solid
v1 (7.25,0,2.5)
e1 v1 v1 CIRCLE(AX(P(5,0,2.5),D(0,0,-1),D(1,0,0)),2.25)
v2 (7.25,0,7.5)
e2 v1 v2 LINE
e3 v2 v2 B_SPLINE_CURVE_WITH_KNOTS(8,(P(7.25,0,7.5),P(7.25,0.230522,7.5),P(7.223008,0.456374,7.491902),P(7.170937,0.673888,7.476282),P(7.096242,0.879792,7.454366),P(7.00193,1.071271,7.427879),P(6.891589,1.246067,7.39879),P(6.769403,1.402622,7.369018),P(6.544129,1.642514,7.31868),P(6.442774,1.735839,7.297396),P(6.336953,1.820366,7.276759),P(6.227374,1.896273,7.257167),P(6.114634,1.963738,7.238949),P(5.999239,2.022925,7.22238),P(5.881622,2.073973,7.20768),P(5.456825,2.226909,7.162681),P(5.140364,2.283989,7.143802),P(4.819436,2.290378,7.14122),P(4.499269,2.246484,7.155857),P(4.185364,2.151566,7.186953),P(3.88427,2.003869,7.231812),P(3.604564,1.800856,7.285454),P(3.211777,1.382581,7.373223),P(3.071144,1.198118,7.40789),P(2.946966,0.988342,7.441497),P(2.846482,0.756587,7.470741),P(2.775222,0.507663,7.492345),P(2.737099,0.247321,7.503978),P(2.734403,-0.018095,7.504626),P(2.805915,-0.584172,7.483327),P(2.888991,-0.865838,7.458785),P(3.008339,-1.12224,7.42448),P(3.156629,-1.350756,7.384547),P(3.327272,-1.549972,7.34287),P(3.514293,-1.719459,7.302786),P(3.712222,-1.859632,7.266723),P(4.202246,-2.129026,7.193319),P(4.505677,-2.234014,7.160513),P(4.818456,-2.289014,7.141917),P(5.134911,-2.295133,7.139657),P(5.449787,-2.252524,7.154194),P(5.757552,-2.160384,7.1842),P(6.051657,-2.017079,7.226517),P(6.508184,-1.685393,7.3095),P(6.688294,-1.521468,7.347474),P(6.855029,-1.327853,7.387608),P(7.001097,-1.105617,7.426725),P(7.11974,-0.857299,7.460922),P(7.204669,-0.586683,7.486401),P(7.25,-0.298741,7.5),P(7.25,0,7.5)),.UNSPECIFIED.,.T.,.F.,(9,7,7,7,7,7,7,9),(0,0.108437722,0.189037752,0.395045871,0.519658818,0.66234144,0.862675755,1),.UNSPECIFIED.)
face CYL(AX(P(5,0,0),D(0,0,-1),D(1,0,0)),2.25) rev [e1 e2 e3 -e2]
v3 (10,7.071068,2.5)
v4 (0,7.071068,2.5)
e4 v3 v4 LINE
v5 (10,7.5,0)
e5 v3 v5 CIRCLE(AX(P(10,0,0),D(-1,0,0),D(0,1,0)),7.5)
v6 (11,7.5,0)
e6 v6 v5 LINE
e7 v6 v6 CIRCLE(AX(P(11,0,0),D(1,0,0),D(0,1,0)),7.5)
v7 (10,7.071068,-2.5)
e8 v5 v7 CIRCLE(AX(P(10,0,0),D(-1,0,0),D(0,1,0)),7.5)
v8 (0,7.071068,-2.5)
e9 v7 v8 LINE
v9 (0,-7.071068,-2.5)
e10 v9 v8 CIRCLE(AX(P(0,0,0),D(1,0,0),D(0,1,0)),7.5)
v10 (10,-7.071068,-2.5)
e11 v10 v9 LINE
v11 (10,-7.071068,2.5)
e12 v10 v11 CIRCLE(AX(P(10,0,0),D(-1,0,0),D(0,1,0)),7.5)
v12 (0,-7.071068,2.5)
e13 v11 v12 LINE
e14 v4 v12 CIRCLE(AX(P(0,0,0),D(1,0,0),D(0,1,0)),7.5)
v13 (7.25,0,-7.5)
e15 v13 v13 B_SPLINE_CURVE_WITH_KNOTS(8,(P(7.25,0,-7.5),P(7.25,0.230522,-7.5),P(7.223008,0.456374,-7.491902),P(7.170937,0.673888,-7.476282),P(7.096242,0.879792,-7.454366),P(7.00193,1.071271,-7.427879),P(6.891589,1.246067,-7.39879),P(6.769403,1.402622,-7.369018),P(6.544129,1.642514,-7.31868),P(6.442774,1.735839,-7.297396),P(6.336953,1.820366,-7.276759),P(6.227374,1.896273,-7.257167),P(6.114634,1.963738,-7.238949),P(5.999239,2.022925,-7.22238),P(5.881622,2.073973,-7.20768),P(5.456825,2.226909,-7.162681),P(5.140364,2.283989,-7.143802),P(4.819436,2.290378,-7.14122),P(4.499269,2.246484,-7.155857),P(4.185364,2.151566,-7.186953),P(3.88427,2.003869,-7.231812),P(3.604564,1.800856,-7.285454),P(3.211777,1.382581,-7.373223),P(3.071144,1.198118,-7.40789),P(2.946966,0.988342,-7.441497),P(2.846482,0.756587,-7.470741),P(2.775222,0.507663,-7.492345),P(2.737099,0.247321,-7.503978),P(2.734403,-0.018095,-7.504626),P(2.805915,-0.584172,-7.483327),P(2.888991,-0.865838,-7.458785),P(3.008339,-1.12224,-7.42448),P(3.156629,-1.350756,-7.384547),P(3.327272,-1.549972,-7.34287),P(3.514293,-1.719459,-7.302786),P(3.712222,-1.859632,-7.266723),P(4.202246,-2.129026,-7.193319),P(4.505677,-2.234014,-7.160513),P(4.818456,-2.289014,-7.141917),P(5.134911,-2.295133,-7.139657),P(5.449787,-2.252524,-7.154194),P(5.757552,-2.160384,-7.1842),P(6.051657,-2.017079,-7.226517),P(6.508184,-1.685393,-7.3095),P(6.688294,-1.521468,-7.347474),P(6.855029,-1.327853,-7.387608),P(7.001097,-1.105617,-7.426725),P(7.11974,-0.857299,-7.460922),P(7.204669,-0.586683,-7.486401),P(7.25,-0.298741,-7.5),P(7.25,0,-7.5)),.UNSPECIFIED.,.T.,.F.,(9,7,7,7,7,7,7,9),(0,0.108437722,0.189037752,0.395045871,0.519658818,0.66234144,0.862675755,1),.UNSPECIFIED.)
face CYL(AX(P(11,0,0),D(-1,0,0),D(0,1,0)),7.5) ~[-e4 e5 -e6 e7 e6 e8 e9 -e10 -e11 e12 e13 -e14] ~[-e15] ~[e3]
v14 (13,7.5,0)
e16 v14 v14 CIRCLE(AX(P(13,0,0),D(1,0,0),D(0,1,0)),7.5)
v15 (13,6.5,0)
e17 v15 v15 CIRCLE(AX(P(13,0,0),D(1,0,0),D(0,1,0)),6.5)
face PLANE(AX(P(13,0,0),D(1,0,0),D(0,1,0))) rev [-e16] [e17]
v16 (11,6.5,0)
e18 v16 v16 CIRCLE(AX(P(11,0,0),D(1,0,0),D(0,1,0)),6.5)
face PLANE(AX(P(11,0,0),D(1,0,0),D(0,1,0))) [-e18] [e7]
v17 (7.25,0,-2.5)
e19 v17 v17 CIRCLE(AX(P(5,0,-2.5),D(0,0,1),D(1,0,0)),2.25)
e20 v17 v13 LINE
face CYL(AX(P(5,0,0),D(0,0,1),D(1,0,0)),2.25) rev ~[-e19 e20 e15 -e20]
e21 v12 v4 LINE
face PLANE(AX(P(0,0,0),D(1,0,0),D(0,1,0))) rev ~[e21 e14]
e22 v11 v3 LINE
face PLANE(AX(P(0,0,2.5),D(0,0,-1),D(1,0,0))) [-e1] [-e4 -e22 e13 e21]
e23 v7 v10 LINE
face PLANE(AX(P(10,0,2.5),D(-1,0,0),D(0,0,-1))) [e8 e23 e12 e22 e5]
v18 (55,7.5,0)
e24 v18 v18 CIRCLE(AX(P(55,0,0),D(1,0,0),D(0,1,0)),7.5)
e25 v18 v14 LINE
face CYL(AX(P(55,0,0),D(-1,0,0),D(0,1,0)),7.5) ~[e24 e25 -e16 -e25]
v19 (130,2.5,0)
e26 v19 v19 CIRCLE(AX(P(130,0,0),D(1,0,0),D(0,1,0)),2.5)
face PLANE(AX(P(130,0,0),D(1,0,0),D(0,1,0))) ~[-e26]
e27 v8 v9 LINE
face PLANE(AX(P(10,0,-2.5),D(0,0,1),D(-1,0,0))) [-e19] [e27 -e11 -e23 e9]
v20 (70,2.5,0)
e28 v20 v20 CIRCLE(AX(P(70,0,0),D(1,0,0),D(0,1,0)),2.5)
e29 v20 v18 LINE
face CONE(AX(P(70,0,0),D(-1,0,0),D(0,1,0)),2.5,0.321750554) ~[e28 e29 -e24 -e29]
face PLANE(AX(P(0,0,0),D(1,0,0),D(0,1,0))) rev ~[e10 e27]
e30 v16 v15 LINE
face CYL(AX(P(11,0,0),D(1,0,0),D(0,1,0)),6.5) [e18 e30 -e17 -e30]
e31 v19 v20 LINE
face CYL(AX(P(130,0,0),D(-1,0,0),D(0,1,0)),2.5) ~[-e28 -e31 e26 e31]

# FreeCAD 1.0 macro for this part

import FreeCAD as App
import Part
import Sketcher

V = App.Vector


def add_polygon(sketch, points):
    """Adds a closed chain of lines whose ends are joined by coincident constraints."""
    first, n = sketch.GeometryCount, len(points)
    for a, b in zip(points, points[1:] + points[:1]):
        sketch.addGeometry(Part.LineSegment(App.Vector(*a, 0), App.Vector(*b, 0)), False)
    for i in range(n):
        sketch.addConstraint(Sketcher.Constraint("Coincident", first + i, 2, first + (i + 1) % n, 1))

doc = App.newDocument("Part")
body = doc.addObject("PartDesign::Body", "Body")

sketch1 = body.newObject("Sketcher::SketchObject", "Sketch")
sketch1.AttachmentSupport = (doc.getObject("XY_Plane"), [""])
sketch1.MapMode = "FlatFace"
add_polygon(sketch1, [(0, 7.5), (0, 0), (130, 0), (130, 2.5), (70, 2.5), (55, 7.5), (13, 7.5), (13, 6.5), (11, 6.5), (11, 7.5)])
sketch1.addConstraint([
    Sketcher.Constraint("Vertical", 0),
    Sketcher.Constraint("Horizontal", 1),
    Sketcher.Constraint("Vertical", 2),
    Sketcher.Constraint("Horizontal", 3),
    Sketcher.Constraint("Horizontal", 5),
    Sketcher.Constraint("Vertical", 6),
    Sketcher.Constraint("Horizontal", 7),
    Sketcher.Constraint("Vertical", 8),
    Sketcher.Constraint("Horizontal", 9),
    Sketcher.Constraint("Coincident", 0, 2, -1, 1),
    Sketcher.Constraint("Horizontal", 5, 2, 8, 2),
    Sketcher.Constraint("DistanceX", 1, 1, 1, 2, 130.0),
    Sketcher.Constraint("DistanceX", 7, 2, 7, 1, 2.0),
    Sketcher.Constraint("DistanceX", 9, 2, 9, 1, 11.0),
    Sketcher.Constraint("DistanceY", 6, 2, 6, 1, 1.0),
    Sketcher.Constraint("DistanceX", -1, 1, 4, 2, 55.0),
    Sketcher.Constraint("DistanceX", 4, 2, 3, 2, 15.0),
    Sketcher.Constraint("DistanceY", 3, 2, 4, 2, 5.0),
    Sketcher.Constraint("DistanceY", 0, 2, 0, 1, 7.5),
])
revolution = body.newObject("PartDesign::Revolution", "Revolution")
revolution.Profile = sketch1
revolution.ReferenceAxis = (sketch1, ["H_Axis"])
revolution.Angle = 360

sketch2 = body.newObject("Sketcher::SketchObject", "Sketch001")
sketch2.AttachmentSupport = (doc.getObject("XZ_Plane"), [""])
sketch2.MapMode = "FlatFace"
add_polygon(sketch2, [(0, -2), (0, 2), (10, 2), (10, -2)])
sketch2.addConstraint([
    Sketcher.Constraint("Vertical", 0),
    Sketcher.Constraint("Horizontal", 1),
    Sketcher.Constraint("Vertical", 2),
    Sketcher.Constraint("Horizontal", 3),
    Sketcher.Constraint("Symmetric", 0, 2, 3, 2, -1, 1),
    Sketcher.Constraint("DistanceX", 1, 1, 1, 2, 10.0),
    Sketcher.Constraint("DistanceY", 0, 1, 0, 2, 5.0),
])
pocket1 = body.newObject("PartDesign::Pocket", "Pocket")
pocket1.Profile = sketch2
pocket1.Type = "ThroughAll"
pocket1.Midplane = True

sketch3 = body.newObject("Sketcher::SketchObject", "Sketch002")
sketch3.AttachmentSupport = (doc.getObject("XY_Plane"), [""])
sketch3.MapMode = "FlatFace"
sketch3.addGeometry(Part.Circle(V(5, 0, 0), V(0, 0, 1), 2.2), False)
sketch3.addConstraint([
    Sketcher.Constraint("PointOnObject", 0, 3, -1),
    Sketcher.Constraint("Diameter", 0, 4.5),
    Sketcher.Constraint("DistanceX", -1, 1, 0, 3, 5.0),
])
pocket2 = body.newObject("PartDesign::Pocket", "Pocket001")
pocket2.Profile = sketch3
pocket2.Type = "ThroughAll"
pocket2.Midplane = True

doc.recompute()
